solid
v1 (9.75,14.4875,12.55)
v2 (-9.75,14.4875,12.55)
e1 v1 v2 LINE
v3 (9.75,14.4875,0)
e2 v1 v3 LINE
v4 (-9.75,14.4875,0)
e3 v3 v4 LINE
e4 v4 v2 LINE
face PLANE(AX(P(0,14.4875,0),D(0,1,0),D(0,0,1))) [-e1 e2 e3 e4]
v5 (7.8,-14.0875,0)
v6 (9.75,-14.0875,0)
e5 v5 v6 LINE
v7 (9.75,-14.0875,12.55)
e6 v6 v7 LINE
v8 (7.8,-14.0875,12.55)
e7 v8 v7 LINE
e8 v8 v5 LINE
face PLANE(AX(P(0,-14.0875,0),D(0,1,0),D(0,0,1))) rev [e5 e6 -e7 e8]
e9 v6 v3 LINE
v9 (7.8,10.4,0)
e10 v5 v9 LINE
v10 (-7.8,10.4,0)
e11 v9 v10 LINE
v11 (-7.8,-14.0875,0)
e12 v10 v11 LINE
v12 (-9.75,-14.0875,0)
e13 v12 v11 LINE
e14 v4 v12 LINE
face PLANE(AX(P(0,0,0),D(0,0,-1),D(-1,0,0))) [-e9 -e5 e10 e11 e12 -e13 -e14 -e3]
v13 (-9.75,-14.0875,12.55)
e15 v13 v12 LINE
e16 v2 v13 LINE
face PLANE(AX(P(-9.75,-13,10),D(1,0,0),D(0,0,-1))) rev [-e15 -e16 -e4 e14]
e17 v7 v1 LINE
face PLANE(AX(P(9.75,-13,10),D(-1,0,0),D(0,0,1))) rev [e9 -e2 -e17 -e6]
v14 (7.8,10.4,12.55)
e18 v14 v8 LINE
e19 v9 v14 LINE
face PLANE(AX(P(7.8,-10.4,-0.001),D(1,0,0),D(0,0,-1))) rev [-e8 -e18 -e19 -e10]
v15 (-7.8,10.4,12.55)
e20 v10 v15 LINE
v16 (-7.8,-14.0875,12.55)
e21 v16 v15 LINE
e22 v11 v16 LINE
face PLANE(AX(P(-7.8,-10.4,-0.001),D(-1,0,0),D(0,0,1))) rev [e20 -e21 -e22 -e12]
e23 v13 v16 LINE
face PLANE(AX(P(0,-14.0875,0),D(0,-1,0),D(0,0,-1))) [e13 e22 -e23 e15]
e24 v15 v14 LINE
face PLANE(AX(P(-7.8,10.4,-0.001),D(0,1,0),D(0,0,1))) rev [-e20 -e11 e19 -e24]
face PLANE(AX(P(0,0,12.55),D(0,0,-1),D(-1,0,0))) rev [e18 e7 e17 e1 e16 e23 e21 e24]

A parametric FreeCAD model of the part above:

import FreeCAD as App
import Part
import Sketcher

doc = App.newDocument("Part")
body = doc.addObject("PartDesign::Body", "Body")

# Sketch on XY plane
sketch1 = body.newObject("Sketcher::SketchObject", "Sketch")
sketch1.AttachmentSupport = (doc.getObject("XY_Plane"), [""])
sketch1.MapMode = "FlatFace"
sketch1.addGeometry([
    Part.LineSegment(App.Vector(-10, 13, 0), App.Vector(-10, -13, 0)),
    Part.LineSegment(App.Vector(-10, -13, 0), App.Vector(10, -13, 0)),
    Part.LineSegment(App.Vector(10, -13, 0), App.Vector(10, 13, 0)),
    Part.LineSegment(App.Vector(10, 13, 0), App.Vector(-10, 13, 0)),
], False)
sketch1.addConstraint([
    Sketcher.Constraint("Coincident", 0, 2, 1, 1),
    Sketcher.Constraint("Coincident", 1, 2, 2, 1),
    Sketcher.Constraint("Coincident", 2, 2, 3, 1),
    Sketcher.Constraint("Coincident", 3, 2, 0, 1),
    Sketcher.Constraint("Vertical", 0),
    Sketcher.Constraint("Horizontal", 1),
    Sketcher.Constraint("Vertical", 2),
    Sketcher.Constraint("Horizontal", 3),
    Sketcher.Constraint("Symmetric", 0, 2, 2, 2, -1, 1),
    Sketcher.Constraint("DistanceY", 0, 2, 0, 1, 26.0),
    Sketcher.Constraint("DistanceX", 1, 1, 1, 2, 19.5),
])
pad1 = body.newObject("PartDesign::Pad", "Pad")
pad1.Profile = sketch1
pad1.Length = 10

# Sketch on XY plane
sketch2 = body.newObject("Sketcher::SketchObject", "Sketch001")
sketch2.AttachmentSupport = (doc.getObject("XY_Plane"), [""])
sketch2.MapMode = "FlatFace"
sketch2.AttachmentOffset = App.Placement(App.Vector(0, 0, 10), App.Rotation())
sketch2.addGeometry([
    Part.LineSegment(App.Vector(-8, 10, 0), App.Vector(-8, -10, 0)),
    Part.LineSegment(App.Vector(-8, -10, 0), App.Vector(8, -10, 0)),
    Part.LineSegment(App.Vector(8, -10, 0), App.Vector(8, 10, 0)),
    Part.LineSegment(App.Vector(8, 10, 0), App.Vector(-8, 10, 0)),
], False)
sketch2.addConstraint([
    Sketcher.Constraint("Coincident", 0, 2, 1, 1),
    Sketcher.Constraint("Coincident", 1, 2, 2, 1),
    Sketcher.Constraint("Coincident", 2, 2, 3, 1),
    Sketcher.Constraint("Coincident", 3, 2, 0, 1),
    Sketcher.Constraint("Vertical", 0),
    Sketcher.Constraint("Horizontal", 1),
    Sketcher.Constraint("Vertical", 2),
    Sketcher.Constraint("Horizontal", 3),
    Sketcher.Constraint("Symmetric", 0, 2, 2, 2, -1, 1),
    Sketcher.Constraint("DistanceX", 1, 1, 1, 2, 15.6),
    Sketcher.Constraint("DistanceY", 0, 2, 0, 1, 20.8),
])
pocket1 = body.newObject("PartDesign::Pocket", "Pocket")
pocket1.Profile = sketch2
pocket1.Type = "UpToFirst"

# Sketch on XZ plane
sketch3 = body.newObject("Sketcher::SketchObject", "Sketch002")
sketch3.AttachmentSupport = (doc.getObject("XZ_Plane"), [""])
sketch3.MapMode = "FlatFace"
sketch3.AttachmentOffset = App.Placement(App.Vector(0, 0, 13), App.Rotation())
sketch3.addGeometry(Part.Circle(App.Vector(-5.8, 5, 0), App.Vector(0, 0, 1), 1.2), False)
sketch3.addConstraint([
    Sketcher.Constraint("Diameter", 0, 2.5),
    Sketcher.Constraint("DistanceY", -1, 1, 0, 3, 5.0),
    Sketcher.Constraint("DistanceX", 0, 3, -1, 1, 5.85),
])
pocket2 = body.newObject("PartDesign::Pocket", "Pocket001")
pocket2.Profile = sketch3
pocket2.Type = "UpToFirst"

# Sketch on XZ plane
sketch4 = body.newObject("Sketcher::SketchObject", "Sketch003")
sketch4.AttachmentSupport = (doc.getObject("XZ_Plane"), [""])
sketch4.MapMode = "FlatFace"
sketch4.AttachmentOffset = App.Placement(App.Vector(0, 0, 13), App.Rotation())
sketch4.addGeometry(Part.Circle(App.Vector(5.8, 5, 0), App.Vector(0, 0, 1), 1.2), False)
sketch4.addConstraint([
    Sketcher.Constraint("Diameter", 0, 2.5),
    Sketcher.Constraint("DistanceY", -1, 1, 0, 3, 5.0),
    Sketcher.Constraint("DistanceX", -1, 1, 0, 3, 5.85),
])
pocket3 = body.newObject("PartDesign::Pocket", "Pocket002")
pocket3.Profile = sketch4
pocket3.Type = "UpToFirst"

# Sketch on XY plane
sketch5 = body.newObject("Sketcher::SketchObject", "Sketch004")
sketch5.AttachmentSupport = (doc.getObject("XY_Plane"), [""])
sketch5.MapMode = "FlatFace"
sketch5.AttachmentOffset = App.Placement(App.Vector(0, 0, 10), App.Rotation())
sketch5.addGeometry([
    Part.LineSegment(App.Vector(-7.8, -1.3, 0), App.Vector(-9.8, -1.3, 0)),  # 0
    Part.LineSegment(App.Vector(-9.8, -1.3, 0), App.Vector(-9.8, -13, 0)),  # 1
    Part.LineSegment(App.Vector(-9.8, -13, 0), App.Vector(9.8, -13, 0)),  # 2
    Part.LineSegment(App.Vector(9.8, -13, 0), App.Vector(9.8, -1.3, 0)),  # 3
    Part.LineSegment(App.Vector(9.8, -1.3, 0), App.Vector(7.8, -1.3, 0)),  # 4
    Part.LineSegment(App.Vector(7.8, -1.3, 0), App.Vector(7.8, -10.4, 0)),  # 5
    Part.LineSegment(App.Vector(7.8, -10.4, 0), App.Vector(-7.8, -10.4, 0)),  # 6
    Part.LineSegment(App.Vector(-7.8, -10.4, 0), App.Vector(-7.8, -1.3, 0)),  # 7
], False)
sketch5.addConstraint([
    Sketcher.Constraint("Coincident", 0, 2, 1, 1),
    Sketcher.Constraint("Coincident", 1, 2, 2, 1),
    Sketcher.Constraint("Coincident", 2, 2, 3, 1),
    Sketcher.Constraint("Coincident", 3, 2, 4, 1),
    Sketcher.Constraint("Coincident", 4, 2, 5, 1),
    Sketcher.Constraint("Coincident", 5, 2, 6, 1),
    Sketcher.Constraint("Coincident", 6, 2, 7, 1),
    Sketcher.Constraint("Coincident", 7, 2, 0, 1),
    Sketcher.Constraint("Horizontal", 0),
    Sketcher.Constraint("Vertical", 1),
    Sketcher.Constraint("Horizontal", 2),
    Sketcher.Constraint("Vertical", 3),
    Sketcher.Constraint("Horizontal", 4),
    Sketcher.Constraint("Vertical", 5),
    Sketcher.Constraint("Horizontal", 6),
    Sketcher.Constraint("Vertical", 7),
    Sketcher.Constraint("Symmetric", 0, 2, 3, 2, -2),
    Sketcher.Constraint("Equal", 0, 4),
    Sketcher.Constraint("DistanceX", 2, 1, 2, 2, 19.5),
    Sketcher.Constraint("DistanceX", 6, 2, 6, 1, 15.6),
    Sketcher.Constraint("DistanceY", 1, 2, -1, 1, 13.0),
    Sketcher.Constraint("DistanceY", 5, 2, -1, 1, 10.4),
    Sketcher.Constraint("DistanceY", 1, 2, 1, 1, 11.7125),
])
pocket4 = body.newObject("PartDesign::Pocket", "Pocket003")
pocket4.Profile = sketch5
pocket4.Length = 10

# Sketch on XZ plane
sketch6 = body.newObject("Sketcher::SketchObject", "Sketch005")
sketch6.AttachmentSupport = (doc.getObject("XZ_Plane"), [""])
sketch6.MapMode = "FlatFace"
sketch6.AttachmentOffset = App.Placement(App.Vector(0, 0, -13), App.Rotation())
sketch6.addGeometry([
    Part.LineSegment(App.Vector(-10, 0, 0), App.Vector(-10, 10, 0)),
    Part.LineSegment(App.Vector(-10, 10, 0), App.Vector(10, 10, 0)),
    Part.LineSegment(App.Vector(10, 10, 0), App.Vector(10, 0, 0)),
    Part.LineSegment(App.Vector(10, 0, 0), App.Vector(-10, 0, 0)),
], False)
sketch6.addConstraint([
    Sketcher.Constraint("Coincident", 0, 2, 1, 1),
    Sketcher.Constraint("Coincident", 1, 2, 2, 1),
    Sketcher.Constraint("Coincident", 2, 2, 3, 1),
    Sketcher.Constraint("Coincident", 3, 2, 0, 1),
    Sketcher.Constraint("Vertical", 0),
    Sketcher.Constraint("Horizontal", 1),
    Sketcher.Constraint("Vertical", 2),
    Sketcher.Constraint("Horizontal", 3),
    Sketcher.Constraint("Symmetric", 2, 2, 3, 2, -1, 1),
    Sketcher.Constraint("DistanceY", 0, 1, 0, 2, 10.0),
    Sketcher.Constraint("DistanceX", 1, 1, 1, 2, 19.5),
])
pad2 = body.newObject("PartDesign::Pad", "Pad001")
pad2.Profile = sketch6
pad2.Length = 1.4875
pad2.Reversed = True

# Sketch on XY plane
sketch7 = body.newObject("Sketcher::SketchObject", "Sketch006")
sketch7.AttachmentSupport = (doc.getObject("XY_Plane"), [""])
sketch7.MapMode = "FlatFace"
sketch7.AttachmentOffset = App.Placement(App.Vector(0, 0, 10), App.Rotation())
sketch7.addGeometry([
    Part.LineSegment(App.Vector(9.8, -1.3, 0), App.Vector(9.8, 0.2, 0)),
    Part.LineSegment(App.Vector(9.8, 0.2, 0), App.Vector(-9.8, 0.2, 0)),
    Part.LineSegment(App.Vector(-9.8, 0.2, 0), App.Vector(-9.8, -1.3, 0)),
    Part.LineSegment(App.Vector(-9.8, -1.3, 0), App.Vector(9.8, -1.3, 0)),
], False)
sketch7.addConstraint([
    Sketcher.Constraint("Coincident", 0, 2, 1, 1),
    Sketcher.Constraint("Coincident", 1, 2, 2, 1),
    Sketcher.Constraint("Coincident", 2, 2, 3, 1),
    Sketcher.Constraint("Coincident", 3, 2, 0, 1),
    Sketcher.Constraint("Vertical", 0),
    Sketcher.Constraint("Horizontal", 1),
    Sketcher.Constraint("Vertical", 2),
    Sketcher.Constraint("Horizontal", 3),
    Sketcher.Constraint("DistanceX", 1, 2, 1, 1, 19.5),
    Sketcher.Constraint("DistanceY", -1, 1, 0, 2, 0.2),
    Sketcher.Constraint("DistanceX", -1, 1, 0, 2, 9.75),
    Sketcher.Constraint("DistanceY", 0, 1, 0, 2, 1.4875),
])
pocket5 = body.newObject("PartDesign::Pocket", "Pocket004")
pocket5.Profile = sketch7
pocket5.Type = "ThroughAll"

# Sketch on XZ plane
sketch8 = body.newObject("Sketcher::SketchObject", "Sketch007")
sketch8.AttachmentSupport = (doc.getObject("XZ_Plane"), [""])
sketch8.MapMode = "FlatFace"
sketch8.AttachmentOffset = App.Placement(App.Vector(0, 0, -0.2), App.Rotation())
sketch8.addGeometry([
    Part.LineSegment(App.Vector(-9.8, 10, 0), App.Vector(-9.8, 0, 0)),  # 0
    Part.LineSegment(App.Vector(-9.8, 0, 0), App.Vector(-7.8, 0, 0)),  # 1
    Part.LineSegment(App.Vector(-7.8, 0, 0), App.Vector(-7.8, 10, 0)),  # 2
    Part.LineSegment(App.Vector(-7.8, 10, 0), App.Vector(-9.8, 10, 0)),  # 3
    Part.LineSegment(App.Vector(7.8, 10, 0), App.Vector(7.8, 0, 0)),  # 4
    Part.LineSegment(App.Vector(7.8, 0, 0), App.Vector(9.8, 0, 0)),  # 5
    Part.LineSegment(App.Vector(9.8, 0, 0), App.Vector(9.8, 10, 0)),  # 6
    Part.LineSegment(App.Vector(9.8, 10, 0), App.Vector(7.8, 10, 0)),  # 7
], False)
sketch8.addConstraint([
    Sketcher.Constraint("Coincident", 0, 2, 1, 1),
    Sketcher.Constraint("Coincident", 1, 2, 2, 1),
    Sketcher.Constraint("Coincident", 2, 2, 3, 1),
    Sketcher.Constraint("Coincident", 3, 2, 0, 1),
    Sketcher.Constraint("Coincident", 4, 2, 5, 1),
    Sketcher.Constraint("Coincident", 5, 2, 6, 1),
    Sketcher.Constraint("Coincident", 6, 2, 7, 1),
    Sketcher.Constraint("Coincident", 7, 2, 4, 1),
    Sketcher.Constraint("Vertical", 0),
    Sketcher.Constraint("Horizontal", 1),
    Sketcher.Constraint("Vertical", 2),
    Sketcher.Constraint("Horizontal", 3),
    Sketcher.Constraint("Vertical", 4),
    Sketcher.Constraint("Horizontal", 5),
    Sketcher.Constraint("Vertical", 6),
    Sketcher.Constraint("Horizontal", 7),
    Sketcher.Constraint("Symmetric", 1, 2, 4, 2, -1, 1),
    Sketcher.Constraint("Symmetric", 0, 2, 5, 2, -2),
    Sketcher.Constraint("Horizontal", 3, 2, 6, 2),
    Sketcher.Constraint("DistanceY", 0, 2, 0, 1, 10.0),
    Sketcher.Constraint("DistanceX", 1, 1, 1, 2, 1.95),
    Sketcher.Constraint("DistanceX", 1, 2, -1, 1, 7.8),
])
pad3 = body.newObject("PartDesign::Pad", "Pad002")
pad3.Profile = sketch8
pad3.Length = 14.2875

# Sketch on XY plane
sketch9 = body.newObject("Sketcher::SketchObject", "Sketch008")
sketch9.AttachmentSupport = (doc.getObject("XY_Plane"), [""])
sketch9.MapMode = "FlatFace"
sketch9.AttachmentOffset = App.Placement(App.Vector(0, 0, 10), App.Rotation())
sketch9.addGeometry([
    Part.LineSegment(App.Vector(-9.8, 14.5, 0), App.Vector(-9.8, -14.1, 0)),  # 0
    Part.LineSegment(App.Vector(-9.8, -14.1, 0), App.Vector(-7.8, -14.1, 0)),  # 1
    Part.LineSegment(App.Vector(-7.8, -14.1, 0), App.Vector(-7.8, 10.4, 0)),  # 2
    Part.LineSegment(App.Vector(-7.8, 10.4, 0), App.Vector(7.8, 10.4, 0)),  # 3
    Part.LineSegment(App.Vector(7.8, 10.4, 0), App.Vector(7.8, -14.1, 0)),  # 4
    Part.LineSegment(App.Vector(7.8, -14.1, 0), App.Vector(9.8, -14.1, 0)),  # 5
    Part.LineSegment(App.Vector(9.8, -14.1, 0), App.Vector(9.8, 14.5, 0)),  # 6
    Part.LineSegment(App.Vector(9.8, 14.5, 0), App.Vector(-9.8, 14.5, 0)),  # 7
], False)
sketch9.addConstraint([
    Sketcher.Constraint("Coincident", 0, 2, 1, 1),
    Sketcher.Constraint("Coincident", 1, 2, 2, 1),
    Sketcher.Constraint("Coincident", 2, 2, 3, 1),
    Sketcher.Constraint("Coincident", 3, 2, 4, 1),
    Sketcher.Constraint("Coincident", 4, 2, 5, 1),
    Sketcher.Constraint("Coincident", 5, 2, 6, 1),
    Sketcher.Constraint("Coincident", 6, 2, 7, 1),
    Sketcher.Constraint("Coincident", 7, 2, 0, 1),
    Sketcher.Constraint("Vertical", 0),
    Sketcher.Constraint("Horizontal", 1),
    Sketcher.Constraint("Vertical", 2),
    Sketcher.Constraint("Horizontal", 3),
    Sketcher.Constraint("Vertical", 4),
    Sketcher.Constraint("Horizontal", 5),
    Sketcher.Constraint("Vertical", 6),
    Sketcher.Constraint("Horizontal", 7),
    Sketcher.Constraint("Symmetric", 1, 2, 4, 2, -2),
    Sketcher.Constraint("Equal", 1, 5),
    Sketcher.Constraint("DistanceX", 3, 1, 3, 2, 15.6),
    Sketcher.Constraint("DistanceX", 7, 2, 7, 1, 19.5),
    Sketcher.Constraint("DistanceY", -1, 1, 2, 2, 10.4),
    Sketcher.Constraint("DistanceY", 0, 2, 0, 1, 28.575),
    Sketcher.Constraint("DistanceY", 2, 1, 2, 2, 24.4875),
])
pad4 = body.newObject("PartDesign::Pad", "Pad003")
pad4.Profile = sketch9
pad4.Length = 2.55

doc.recompute()
